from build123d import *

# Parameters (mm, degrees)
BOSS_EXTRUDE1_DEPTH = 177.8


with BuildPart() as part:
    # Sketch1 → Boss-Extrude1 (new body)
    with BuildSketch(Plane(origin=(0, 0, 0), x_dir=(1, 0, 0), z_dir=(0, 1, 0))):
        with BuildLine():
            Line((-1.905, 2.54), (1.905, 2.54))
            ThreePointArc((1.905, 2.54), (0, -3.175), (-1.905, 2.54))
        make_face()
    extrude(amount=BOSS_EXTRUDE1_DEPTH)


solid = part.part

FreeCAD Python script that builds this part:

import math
import FreeCAD as App
import Part
import Sketcher
from FreeCAD import Vector
Q = App.Units.Quantity

doc = App.newDocument("Part")
body = doc.addObject("PartDesign::Body", "Body")

# Sketch on XZ plane
sketch1 = doc.addObject("Sketcher::SketchObject", "Sketch")
body.addObject(sketch1)
sketch1.AttachmentSupport = (doc.XZ_Plane, [""])
sketch1.MapMode = "FlatFace"
sketch1.addGeometry(Part.LineSegment(Vector(1.9, -2.5, 0), Vector(-1.9, -2.5, 0)), False)
sketch1.addGeometry(Part.ArcOfCircle(Part.Circle(Vector(0, 0, 0), Vector(0, 0, 1), 3.2), math.radians(-53), math.radians(233)), False)
sketch1.addConstraint(Sketcher.Constraint("Coincident", 0, 1, 1, 1))
sketch1.addConstraint(Sketcher.Constraint("Coincident", 1, 2, 0, 2))
sketch1.addConstraint(Sketcher.Constraint("Horizontal", 0))
sketch1.addConstraint(Sketcher.Constraint("Coincident", 1, 3, -1, 1))
sketch1.addConstraint(Sketcher.Constraint("Radius", 1, Q("0.125 in")))
sketch1.addConstraint(Sketcher.Constraint("DistanceX", 0, 2, 0, 1, Q("0.15 in")))
pad1 = doc.addObject("PartDesign::Pad", "Pad")
body.addObject(pad1)
pad1.Profile = sketch1
pad1.Length = Q("7 in")
pad1.Reversed = True

doc.recompute()
